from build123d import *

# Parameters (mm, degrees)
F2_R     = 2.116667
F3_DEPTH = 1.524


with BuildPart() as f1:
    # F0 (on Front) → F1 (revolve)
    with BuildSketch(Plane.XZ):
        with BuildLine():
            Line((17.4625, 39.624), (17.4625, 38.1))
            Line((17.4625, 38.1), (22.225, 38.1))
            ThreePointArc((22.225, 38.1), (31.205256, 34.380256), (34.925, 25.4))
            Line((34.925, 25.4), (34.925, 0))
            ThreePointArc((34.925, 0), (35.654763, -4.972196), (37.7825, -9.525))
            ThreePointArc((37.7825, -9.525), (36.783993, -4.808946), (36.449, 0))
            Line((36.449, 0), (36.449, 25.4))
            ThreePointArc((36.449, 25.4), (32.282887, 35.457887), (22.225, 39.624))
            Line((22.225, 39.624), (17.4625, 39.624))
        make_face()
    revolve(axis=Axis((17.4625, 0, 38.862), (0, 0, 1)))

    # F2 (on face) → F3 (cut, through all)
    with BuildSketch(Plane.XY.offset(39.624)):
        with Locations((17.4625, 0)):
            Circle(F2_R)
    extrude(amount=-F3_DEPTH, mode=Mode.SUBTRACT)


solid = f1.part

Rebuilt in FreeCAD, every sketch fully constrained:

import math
import FreeCAD as App
import Part
import Sketcher
from FreeCAD import Vector
Q = App.Units.Quantity

doc = App.newDocument("Part")
body = doc.addObject("PartDesign::Body", "Body")

# Sketch on XZ plane
sketch1 = body.newObject("Sketcher::SketchObject", "Sketch")
sketch1.AttachmentSupport = (doc.getObject("XZ_Plane"), [""])
sketch1.MapMode = "FlatFace"
sketch1.addGeometry([
    Part.LineSegment(Vector(17.4625, 39.624, 0), Vector(17.4625, 38.1, 0)),  # 0
    Part.LineSegment(Vector(17.4625, 38.1, 0), Vector(22.225, 38.1, 0)),  # 1
    Part.ArcOfCircle(Part.Circle(Vector(22.225, 25.4, 0), Vector(0, 0, 1), 12.7), math.radians(0.000002), math.radians(89.999998)),  # 2
    Part.LineSegment(Vector(34.925, 25.4, 0), Vector(34.925, 0, 0)),  # 3
    Part.ArcOfCircle(Part.Circle(Vector(52.228741, -0.000003, 0), Vector(0, 0, 1), 17.303741), math.radians(179.999991), math.radians(213.398498)),  # 4
    Part.ArcOfCircle(Part.Circle(Vector(71.133636, 0.000004, 0), Vector(0, 0, 1), 34.684636), math.radians(-179.999993), math.radians(-164.060786)),  # 5
    Part.LineSegment(Vector(36.449, 0, 0), Vector(36.449, 25.4, 0)),  # 6
    Part.ArcOfCircle(Part.Circle(Vector(22.225, 25.4, 0), Vector(0, 0, 1), 14.224), math.radians(-0.000002), math.radians(90.000002)),  # 7
    Part.LineSegment(Vector(22.225, 39.624, 0), Vector(17.4625, 39.624, 0)),  # 8
], False)
sketch1.addGeometry(Part.LineSegment(Vector(17.4625, -9.525, 0), Vector(17.4625, 39.624, 0)), True)  # axis
sketch1.addConstraint([
    Sketcher.Constraint("Coincident", 0, 2, 1, 1),
    Sketcher.Constraint("Coincident", 1, 2, 2, 2),
    Sketcher.Constraint("Coincident", 2, 1, 3, 1),
    Sketcher.Constraint("Coincident", 3, 2, 4, 1),
    Sketcher.Constraint("Coincident", 4, 2, 5, 2),
    Sketcher.Constraint("Coincident", 5, 1, 6, 1),
    Sketcher.Constraint("Coincident", 6, 2, 7, 1),
    Sketcher.Constraint("Coincident", 7, 2, 8, 1),
    Sketcher.Constraint("Coincident", 8, 2, 0, 1),
    Sketcher.Constraint("Vertical", 0),
    Sketcher.Constraint("Horizontal", 1),
    Sketcher.Constraint("Vertical", 3),
    Sketcher.Constraint("Vertical", 6),
    Sketcher.Constraint("Horizontal", 8),
    Sketcher.Constraint("Vertical", 9),
    Sketcher.Constraint("Coincident", 7, 3, 2, 3),
    Sketcher.Constraint("Coincident", 9, 2, 8, 2),
    Sketcher.Constraint("PointOnObject", 3, 2, -1),
    Sketcher.Constraint("PointOnObject", 5, 1, -1),
    Sketcher.Constraint("Radius", 2, Q("0.5 in")),
    Sketcher.Constraint("DistanceY", 3, 2, 3, 1, Q("1 in")),
    Sketcher.Constraint("DistanceY", 6, 1, 6, 2, Q("1 in")),
    Sketcher.Constraint("Radius", 7, Q("0.56 in")),
    Sketcher.Constraint("DistanceY", -1, 1, 2, 3, Q("1 in")),
    Sketcher.Constraint("DistanceY", 4, 3, 2, 3, Q("1.0000001 in")),
    Sketcher.Constraint("DistanceY", 5, 3, 2, 3, Q("0.9999998 in")),
    Sketcher.Constraint("DistanceX", 1, 2, 2, 1, Q("0.5 in")),
    Sketcher.Constraint("DistanceX", 7, 2, 2, 1, Q("0.5 in")),
    Sketcher.Constraint("DistanceX", 9, 1, 4, 2, Q("0.8 in")),
    Sketcher.Constraint("DistanceX", 1, 1, 1, 2, Q("0.1875 in")),
    Sketcher.Constraint("DistanceY", 9, 1, 9, 2, Q("1.935 in")),
    Sketcher.Constraint("DistanceX", -1, 1, 2, 3, Q("0.875 in")),
    Sketcher.Constraint("DistanceY", 4, 2, -1, 1, Q("0.375 in")),
])
revolution = body.newObject("PartDesign::Revolution", "Revolution")
revolution.Profile = sketch1
revolution.ReferenceAxis = (sketch1, ["Axis0"])
revolution.Angle = 360

# Sketch on XY plane
sketch2 = body.newObject("Sketcher::SketchObject", "Sketch001")
sketch2.AttachmentSupport = (doc.getObject("XY_Plane"), [""])
sketch2.MapMode = "FlatFace"
sketch2.AttachmentOffset = App.Placement(Vector(0, 0, 1.56 * 25.4), App.Rotation())
sketch2.addGeometry(Part.Circle(Vector(17.5, 0, 0), Vector(0, 0, 1), 2.1), False)
sketch2.addConstraint([
    Sketcher.Constraint("PointOnObject", 0, 3, -1),
    Sketcher.Constraint("DistanceX", -1, 1, 0, 3, Q("0.6875 in")),
    Sketcher.Constraint("Diameter", 0, Q("4.233334 mm")),
])
pocket1 = body.newObject("PartDesign::Pocket", "Pocket")
pocket1.Profile = sketch2
pocket1.Type = "ThroughAll"

doc.recompute()
